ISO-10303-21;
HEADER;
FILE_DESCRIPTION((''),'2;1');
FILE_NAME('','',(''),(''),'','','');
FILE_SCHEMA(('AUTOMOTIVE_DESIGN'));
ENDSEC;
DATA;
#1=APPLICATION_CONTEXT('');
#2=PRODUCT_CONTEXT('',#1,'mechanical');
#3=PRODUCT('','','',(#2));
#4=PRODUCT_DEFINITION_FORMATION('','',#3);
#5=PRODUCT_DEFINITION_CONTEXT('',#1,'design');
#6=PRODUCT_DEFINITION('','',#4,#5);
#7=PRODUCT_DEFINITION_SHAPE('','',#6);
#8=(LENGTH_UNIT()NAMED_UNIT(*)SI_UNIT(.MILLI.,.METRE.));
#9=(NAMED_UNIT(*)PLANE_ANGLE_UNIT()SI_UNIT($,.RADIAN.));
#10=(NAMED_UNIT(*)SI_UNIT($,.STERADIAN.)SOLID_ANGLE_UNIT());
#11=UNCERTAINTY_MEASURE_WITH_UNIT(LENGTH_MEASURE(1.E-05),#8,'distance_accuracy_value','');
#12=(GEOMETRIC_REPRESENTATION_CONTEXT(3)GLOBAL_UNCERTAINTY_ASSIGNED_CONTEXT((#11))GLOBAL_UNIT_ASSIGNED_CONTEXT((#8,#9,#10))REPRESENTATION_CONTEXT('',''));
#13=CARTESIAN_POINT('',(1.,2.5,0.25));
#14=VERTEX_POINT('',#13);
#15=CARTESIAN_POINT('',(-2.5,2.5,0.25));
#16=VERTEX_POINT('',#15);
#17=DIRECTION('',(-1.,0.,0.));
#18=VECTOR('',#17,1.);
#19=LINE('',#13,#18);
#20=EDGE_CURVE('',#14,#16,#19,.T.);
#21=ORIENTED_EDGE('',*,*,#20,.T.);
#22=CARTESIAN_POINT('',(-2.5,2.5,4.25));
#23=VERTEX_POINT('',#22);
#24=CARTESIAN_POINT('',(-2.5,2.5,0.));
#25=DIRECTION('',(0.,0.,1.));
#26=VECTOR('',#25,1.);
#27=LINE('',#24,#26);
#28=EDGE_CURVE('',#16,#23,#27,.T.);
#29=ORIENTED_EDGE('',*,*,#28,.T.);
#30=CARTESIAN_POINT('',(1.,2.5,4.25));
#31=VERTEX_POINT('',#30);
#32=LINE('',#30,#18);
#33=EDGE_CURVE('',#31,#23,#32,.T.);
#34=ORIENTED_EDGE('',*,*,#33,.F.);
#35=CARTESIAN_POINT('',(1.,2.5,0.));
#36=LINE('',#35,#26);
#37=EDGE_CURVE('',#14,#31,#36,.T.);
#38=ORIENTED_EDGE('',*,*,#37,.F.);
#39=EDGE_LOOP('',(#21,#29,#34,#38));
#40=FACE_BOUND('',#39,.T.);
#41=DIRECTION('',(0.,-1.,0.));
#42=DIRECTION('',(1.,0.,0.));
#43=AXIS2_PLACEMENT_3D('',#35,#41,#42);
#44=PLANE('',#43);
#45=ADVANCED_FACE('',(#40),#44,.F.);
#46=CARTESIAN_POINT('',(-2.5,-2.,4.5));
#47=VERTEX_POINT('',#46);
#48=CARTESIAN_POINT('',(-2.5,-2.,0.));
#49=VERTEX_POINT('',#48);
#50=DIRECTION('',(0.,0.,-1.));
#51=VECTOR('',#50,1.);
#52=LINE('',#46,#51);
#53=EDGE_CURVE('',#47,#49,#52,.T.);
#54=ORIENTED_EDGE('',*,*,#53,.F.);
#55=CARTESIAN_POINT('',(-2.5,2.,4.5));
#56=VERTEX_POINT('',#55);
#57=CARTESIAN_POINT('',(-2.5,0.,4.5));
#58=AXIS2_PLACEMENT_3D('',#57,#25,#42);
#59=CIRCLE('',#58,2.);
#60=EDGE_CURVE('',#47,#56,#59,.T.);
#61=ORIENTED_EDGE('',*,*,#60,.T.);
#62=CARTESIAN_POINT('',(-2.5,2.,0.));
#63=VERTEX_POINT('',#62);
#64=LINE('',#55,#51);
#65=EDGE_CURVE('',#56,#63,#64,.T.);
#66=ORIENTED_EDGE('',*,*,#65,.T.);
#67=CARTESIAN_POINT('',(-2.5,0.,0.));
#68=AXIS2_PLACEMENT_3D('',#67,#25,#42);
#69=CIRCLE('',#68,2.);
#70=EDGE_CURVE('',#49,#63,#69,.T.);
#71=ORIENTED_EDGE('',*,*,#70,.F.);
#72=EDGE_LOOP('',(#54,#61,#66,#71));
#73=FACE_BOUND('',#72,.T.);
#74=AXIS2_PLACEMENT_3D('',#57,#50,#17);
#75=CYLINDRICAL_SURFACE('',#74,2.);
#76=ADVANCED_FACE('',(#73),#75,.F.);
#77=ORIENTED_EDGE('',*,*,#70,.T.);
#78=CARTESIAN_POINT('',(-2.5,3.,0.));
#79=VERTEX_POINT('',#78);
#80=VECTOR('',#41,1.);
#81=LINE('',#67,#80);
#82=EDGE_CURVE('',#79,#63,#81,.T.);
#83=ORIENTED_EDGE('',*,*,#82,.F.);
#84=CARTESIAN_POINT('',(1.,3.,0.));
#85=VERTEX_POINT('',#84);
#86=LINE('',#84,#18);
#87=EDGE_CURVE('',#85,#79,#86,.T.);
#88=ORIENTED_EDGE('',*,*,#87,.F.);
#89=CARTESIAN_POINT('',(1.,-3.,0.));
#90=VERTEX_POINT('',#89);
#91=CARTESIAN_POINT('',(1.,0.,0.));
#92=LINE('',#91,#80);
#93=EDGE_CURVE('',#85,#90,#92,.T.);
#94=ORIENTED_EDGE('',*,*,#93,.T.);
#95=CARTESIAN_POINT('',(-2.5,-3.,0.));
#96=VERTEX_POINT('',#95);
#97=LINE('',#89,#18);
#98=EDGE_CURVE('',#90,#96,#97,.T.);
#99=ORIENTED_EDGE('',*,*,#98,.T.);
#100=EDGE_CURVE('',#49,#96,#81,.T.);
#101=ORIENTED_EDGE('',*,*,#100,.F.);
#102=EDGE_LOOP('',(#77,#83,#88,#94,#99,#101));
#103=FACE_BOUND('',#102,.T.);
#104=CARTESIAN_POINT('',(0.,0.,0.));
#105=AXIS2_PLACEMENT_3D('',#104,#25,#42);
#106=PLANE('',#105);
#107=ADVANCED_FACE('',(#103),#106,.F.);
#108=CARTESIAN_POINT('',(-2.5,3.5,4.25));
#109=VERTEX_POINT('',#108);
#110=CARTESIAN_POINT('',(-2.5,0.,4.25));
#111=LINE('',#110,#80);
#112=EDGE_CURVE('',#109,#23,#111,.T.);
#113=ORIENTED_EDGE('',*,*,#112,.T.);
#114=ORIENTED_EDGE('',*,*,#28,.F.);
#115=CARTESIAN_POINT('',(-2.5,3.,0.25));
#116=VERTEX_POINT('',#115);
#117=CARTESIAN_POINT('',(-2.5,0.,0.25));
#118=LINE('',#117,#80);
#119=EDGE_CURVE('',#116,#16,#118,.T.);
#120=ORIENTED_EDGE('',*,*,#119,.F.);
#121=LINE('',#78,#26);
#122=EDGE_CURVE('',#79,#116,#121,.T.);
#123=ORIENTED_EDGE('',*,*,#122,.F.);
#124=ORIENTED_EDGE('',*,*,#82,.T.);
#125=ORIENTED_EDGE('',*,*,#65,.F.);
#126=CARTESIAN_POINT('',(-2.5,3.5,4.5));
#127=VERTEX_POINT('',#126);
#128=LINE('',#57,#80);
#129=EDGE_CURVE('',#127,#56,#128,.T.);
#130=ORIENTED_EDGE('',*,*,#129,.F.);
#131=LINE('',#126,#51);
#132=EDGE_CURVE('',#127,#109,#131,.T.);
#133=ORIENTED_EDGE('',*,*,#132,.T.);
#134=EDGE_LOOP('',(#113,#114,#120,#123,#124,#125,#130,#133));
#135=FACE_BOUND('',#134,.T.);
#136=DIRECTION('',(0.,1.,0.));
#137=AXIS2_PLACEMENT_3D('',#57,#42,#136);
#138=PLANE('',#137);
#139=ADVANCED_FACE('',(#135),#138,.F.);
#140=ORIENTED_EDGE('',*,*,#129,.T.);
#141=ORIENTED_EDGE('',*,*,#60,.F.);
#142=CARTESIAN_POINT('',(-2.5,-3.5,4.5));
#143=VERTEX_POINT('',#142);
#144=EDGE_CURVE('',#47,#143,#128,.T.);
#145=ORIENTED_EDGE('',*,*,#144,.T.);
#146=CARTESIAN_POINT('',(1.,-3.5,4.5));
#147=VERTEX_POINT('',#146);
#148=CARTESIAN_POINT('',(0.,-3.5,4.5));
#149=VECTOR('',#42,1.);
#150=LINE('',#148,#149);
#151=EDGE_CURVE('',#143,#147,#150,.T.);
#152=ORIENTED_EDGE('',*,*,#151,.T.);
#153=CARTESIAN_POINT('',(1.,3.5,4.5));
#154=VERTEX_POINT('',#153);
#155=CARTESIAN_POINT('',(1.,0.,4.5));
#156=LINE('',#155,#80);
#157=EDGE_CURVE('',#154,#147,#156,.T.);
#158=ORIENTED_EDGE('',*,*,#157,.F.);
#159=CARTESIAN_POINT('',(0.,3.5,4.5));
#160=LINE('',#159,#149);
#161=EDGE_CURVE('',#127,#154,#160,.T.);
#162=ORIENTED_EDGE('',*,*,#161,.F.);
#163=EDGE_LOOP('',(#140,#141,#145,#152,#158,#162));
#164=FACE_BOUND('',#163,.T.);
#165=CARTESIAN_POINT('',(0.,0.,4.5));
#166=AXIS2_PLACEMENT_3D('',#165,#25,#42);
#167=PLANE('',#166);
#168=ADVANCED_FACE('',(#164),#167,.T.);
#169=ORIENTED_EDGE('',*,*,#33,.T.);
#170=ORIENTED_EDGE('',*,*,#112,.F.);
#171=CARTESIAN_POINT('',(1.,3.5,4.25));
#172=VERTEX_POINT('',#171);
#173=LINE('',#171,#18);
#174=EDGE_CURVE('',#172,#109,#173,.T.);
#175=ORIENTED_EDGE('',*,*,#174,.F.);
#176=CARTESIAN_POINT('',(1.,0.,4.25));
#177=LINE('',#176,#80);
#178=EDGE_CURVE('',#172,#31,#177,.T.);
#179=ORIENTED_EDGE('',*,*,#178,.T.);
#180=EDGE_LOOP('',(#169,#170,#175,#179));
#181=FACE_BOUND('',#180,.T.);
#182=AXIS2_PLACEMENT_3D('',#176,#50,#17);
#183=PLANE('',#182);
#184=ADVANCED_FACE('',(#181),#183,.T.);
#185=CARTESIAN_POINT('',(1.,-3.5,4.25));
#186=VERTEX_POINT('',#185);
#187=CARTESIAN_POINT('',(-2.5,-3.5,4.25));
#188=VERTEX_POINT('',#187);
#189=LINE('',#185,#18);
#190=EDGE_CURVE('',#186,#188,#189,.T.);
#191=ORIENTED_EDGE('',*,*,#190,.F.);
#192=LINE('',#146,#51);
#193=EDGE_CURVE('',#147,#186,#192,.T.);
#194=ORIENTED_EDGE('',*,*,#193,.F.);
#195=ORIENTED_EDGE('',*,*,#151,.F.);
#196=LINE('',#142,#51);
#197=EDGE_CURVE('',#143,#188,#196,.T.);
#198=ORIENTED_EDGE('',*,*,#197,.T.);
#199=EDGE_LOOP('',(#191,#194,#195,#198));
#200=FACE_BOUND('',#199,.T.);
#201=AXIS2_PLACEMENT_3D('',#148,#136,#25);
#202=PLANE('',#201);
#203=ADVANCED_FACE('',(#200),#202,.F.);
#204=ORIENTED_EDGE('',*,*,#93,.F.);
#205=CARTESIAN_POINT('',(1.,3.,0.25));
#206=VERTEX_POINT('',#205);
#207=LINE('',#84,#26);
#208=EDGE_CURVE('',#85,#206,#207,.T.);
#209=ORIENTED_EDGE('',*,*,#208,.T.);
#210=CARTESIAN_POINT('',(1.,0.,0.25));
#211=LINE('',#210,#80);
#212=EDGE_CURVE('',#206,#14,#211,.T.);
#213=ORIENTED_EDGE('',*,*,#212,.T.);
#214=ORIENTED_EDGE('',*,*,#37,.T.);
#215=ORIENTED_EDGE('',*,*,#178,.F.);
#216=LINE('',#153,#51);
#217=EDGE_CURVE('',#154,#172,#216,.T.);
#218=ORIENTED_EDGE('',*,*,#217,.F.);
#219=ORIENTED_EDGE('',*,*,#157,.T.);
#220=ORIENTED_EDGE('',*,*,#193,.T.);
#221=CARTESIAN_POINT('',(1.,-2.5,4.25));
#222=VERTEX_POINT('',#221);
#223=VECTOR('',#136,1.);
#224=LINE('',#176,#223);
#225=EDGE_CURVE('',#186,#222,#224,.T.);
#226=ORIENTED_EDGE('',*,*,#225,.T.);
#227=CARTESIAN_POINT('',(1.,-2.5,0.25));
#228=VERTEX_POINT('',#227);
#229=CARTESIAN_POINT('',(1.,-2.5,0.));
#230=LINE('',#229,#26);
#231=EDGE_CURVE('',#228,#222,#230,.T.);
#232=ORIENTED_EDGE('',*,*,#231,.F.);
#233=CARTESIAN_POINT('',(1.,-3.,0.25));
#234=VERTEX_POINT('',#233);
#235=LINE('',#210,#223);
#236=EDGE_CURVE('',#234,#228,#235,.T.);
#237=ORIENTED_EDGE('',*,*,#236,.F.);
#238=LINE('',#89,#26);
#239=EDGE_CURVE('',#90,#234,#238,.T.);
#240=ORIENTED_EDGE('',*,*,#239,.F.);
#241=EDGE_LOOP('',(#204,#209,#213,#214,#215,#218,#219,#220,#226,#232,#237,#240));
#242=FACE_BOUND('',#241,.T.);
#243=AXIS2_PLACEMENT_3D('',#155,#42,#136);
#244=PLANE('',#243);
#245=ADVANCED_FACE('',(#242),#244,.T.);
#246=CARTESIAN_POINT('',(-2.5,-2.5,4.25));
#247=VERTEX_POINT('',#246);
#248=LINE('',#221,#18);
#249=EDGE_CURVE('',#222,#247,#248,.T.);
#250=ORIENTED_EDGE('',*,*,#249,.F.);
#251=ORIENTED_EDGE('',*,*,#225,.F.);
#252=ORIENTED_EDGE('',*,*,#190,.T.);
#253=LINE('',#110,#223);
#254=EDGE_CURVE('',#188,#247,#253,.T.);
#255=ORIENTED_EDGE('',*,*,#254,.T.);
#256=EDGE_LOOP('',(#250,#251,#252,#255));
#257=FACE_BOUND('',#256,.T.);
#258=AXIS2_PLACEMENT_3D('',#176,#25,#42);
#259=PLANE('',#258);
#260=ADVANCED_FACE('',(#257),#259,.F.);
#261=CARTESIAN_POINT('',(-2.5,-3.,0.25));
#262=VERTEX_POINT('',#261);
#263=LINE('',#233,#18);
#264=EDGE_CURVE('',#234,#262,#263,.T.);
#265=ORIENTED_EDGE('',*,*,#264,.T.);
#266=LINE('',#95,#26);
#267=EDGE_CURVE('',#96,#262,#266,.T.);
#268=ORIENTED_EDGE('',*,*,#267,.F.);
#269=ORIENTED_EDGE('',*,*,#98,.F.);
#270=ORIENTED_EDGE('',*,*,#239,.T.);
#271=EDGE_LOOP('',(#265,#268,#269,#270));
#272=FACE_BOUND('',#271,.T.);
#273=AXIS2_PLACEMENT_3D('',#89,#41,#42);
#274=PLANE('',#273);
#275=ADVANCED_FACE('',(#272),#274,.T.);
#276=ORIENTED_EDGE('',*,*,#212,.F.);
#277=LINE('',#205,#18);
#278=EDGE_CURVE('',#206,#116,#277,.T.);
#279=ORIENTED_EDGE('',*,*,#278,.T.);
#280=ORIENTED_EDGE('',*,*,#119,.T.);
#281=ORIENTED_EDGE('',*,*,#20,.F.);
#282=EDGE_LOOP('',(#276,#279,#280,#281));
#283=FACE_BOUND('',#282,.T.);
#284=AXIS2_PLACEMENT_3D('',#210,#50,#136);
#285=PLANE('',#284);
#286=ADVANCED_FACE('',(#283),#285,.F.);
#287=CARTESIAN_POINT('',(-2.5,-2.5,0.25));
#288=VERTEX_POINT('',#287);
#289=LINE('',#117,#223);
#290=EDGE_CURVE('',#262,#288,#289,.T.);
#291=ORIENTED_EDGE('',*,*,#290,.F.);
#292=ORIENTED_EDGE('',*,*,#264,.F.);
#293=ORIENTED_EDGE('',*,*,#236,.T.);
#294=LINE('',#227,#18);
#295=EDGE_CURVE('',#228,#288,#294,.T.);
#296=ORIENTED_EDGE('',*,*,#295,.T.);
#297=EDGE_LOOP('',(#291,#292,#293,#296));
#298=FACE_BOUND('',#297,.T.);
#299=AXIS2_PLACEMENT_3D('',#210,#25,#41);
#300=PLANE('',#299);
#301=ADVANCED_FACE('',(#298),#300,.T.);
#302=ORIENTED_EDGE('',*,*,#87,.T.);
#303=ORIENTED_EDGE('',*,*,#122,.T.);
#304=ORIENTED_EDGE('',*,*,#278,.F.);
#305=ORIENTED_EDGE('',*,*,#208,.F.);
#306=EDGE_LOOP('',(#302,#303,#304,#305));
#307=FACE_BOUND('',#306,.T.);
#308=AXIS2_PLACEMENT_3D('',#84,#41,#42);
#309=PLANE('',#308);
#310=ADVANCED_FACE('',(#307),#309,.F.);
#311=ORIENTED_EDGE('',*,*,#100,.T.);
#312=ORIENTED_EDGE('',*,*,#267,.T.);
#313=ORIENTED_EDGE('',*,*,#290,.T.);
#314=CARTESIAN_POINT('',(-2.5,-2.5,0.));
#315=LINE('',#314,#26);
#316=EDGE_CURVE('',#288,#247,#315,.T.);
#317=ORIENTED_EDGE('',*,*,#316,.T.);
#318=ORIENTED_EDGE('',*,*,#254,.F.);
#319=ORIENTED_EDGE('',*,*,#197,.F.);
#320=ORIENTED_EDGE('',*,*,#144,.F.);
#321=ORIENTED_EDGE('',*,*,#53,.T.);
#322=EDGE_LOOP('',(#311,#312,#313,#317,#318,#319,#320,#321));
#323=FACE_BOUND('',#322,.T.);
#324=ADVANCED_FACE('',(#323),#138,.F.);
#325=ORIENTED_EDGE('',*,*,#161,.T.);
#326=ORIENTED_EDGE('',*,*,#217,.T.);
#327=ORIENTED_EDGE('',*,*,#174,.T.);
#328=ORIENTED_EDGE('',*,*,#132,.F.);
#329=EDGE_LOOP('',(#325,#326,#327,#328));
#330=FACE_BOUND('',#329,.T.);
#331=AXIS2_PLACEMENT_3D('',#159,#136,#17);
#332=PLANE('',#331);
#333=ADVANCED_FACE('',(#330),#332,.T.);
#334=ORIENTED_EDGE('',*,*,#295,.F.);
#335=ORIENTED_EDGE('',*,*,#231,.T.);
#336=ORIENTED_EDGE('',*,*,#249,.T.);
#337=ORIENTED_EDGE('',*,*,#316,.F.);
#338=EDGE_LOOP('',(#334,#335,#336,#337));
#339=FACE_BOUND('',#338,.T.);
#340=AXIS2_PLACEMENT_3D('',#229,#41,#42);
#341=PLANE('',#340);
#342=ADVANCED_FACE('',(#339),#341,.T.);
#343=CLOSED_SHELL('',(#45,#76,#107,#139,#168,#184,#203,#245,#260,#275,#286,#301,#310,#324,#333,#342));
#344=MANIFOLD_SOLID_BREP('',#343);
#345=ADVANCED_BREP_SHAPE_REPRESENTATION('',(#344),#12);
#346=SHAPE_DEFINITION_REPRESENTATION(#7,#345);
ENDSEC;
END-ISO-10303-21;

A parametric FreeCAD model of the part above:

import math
import FreeCAD as App
import Part
import Sketcher
from FreeCAD import Vector
Q = App.Units.Quantity


def add_polygon(sketch, points):
    """Adds a closed chain of lines whose ends are joined by coincident constraints."""
    first, n = sketch.GeometryCount, len(points)
    for a, b in zip(points, points[1:] + points[:1]):
        sketch.addGeometry(Part.LineSegment(App.Vector(*a, 0), App.Vector(*b, 0)), False)
    for i in range(n):
        sketch.addConstraint(Sketcher.Constraint("Coincident", first + i, 2, first + (i + 1) % n, 1))

doc = App.newDocument("Part")
body = doc.addObject("PartDesign::Body", "Body")

# Sketch on XY plane
sketch1 = body.newObject("Sketcher::SketchObject", "Sketch")
sketch1.AttachmentSupport = (doc.getObject("XY_Plane"), [""])
sketch1.MapMode = "FlatFace"
sketch1.addGeometry([
    Part.LineSegment(Vector(1, 3.5, 0), Vector(-2.5, 3.5, 0)),  # 0
    Part.LineSegment(Vector(-2.5, 3.5, 0), Vector(-2.5, 2, 0)),  # 1
    Part.ArcOfCircle(Part.Circle(Vector(-2.5, 0, 0), Vector(0, 0, 1), 2), math.radians(-90), math.radians(90)),  # 2
    Part.LineSegment(Vector(-2.5, -2, 0), Vector(-2.5, -3.5, 0)),  # 3
    Part.LineSegment(Vector(-2.5, -3.5, 0), Vector(1, -3.5, 0)),  # 4
    Part.LineSegment(Vector(1, -3.5, 0), Vector(1, 3.5, 0)),  # 5
], False)
sketch1.addConstraint([
    Sketcher.Constraint("Coincident", 0, 2, 1, 1),
    Sketcher.Constraint("Coincident", 1, 2, 2, 2),
    Sketcher.Constraint("Coincident", 2, 1, 3, 1),
    Sketcher.Constraint("Coincident", 3, 2, 4, 1),
    Sketcher.Constraint("Coincident", 4, 2, 5, 1),
    Sketcher.Constraint("Coincident", 5, 2, 0, 1),
    Sketcher.Constraint("Horizontal", 0),
    Sketcher.Constraint("Vertical", 1),
    Sketcher.Constraint("Vertical", 3),
    Sketcher.Constraint("Horizontal", 4),
    Sketcher.Constraint("Vertical", 5),
    Sketcher.Constraint("Symmetric", 1, 2, 2, 1, -1),
    Sketcher.Constraint("Vertical", 2, 3, 0, 2),
    Sketcher.Constraint("Equal", 1, 3),
    Sketcher.Constraint("Radius", 2, Q("2 mm")),
    Sketcher.Constraint("DistanceY", 5, 1, 5, 2, Q("7 mm")),
    Sketcher.Constraint("DistanceX", 0, 2, 0, 1, Q("3.5 mm")),
    Sketcher.Constraint("DistanceX", -1, 1, 4, 2, Q("1 mm")),
])
pad1 = body.newObject("PartDesign::Pad", "Pad")
pad1.Profile = sketch1
pad1.Length = 4.5

# Sketch on YZ plane
sketch2 = body.newObject("Sketcher::SketchObject", "Sketch001")
sketch2.AttachmentSupport = (doc.getObject("YZ_Plane"), [""])
sketch2.MapMode = "FlatFace"
sketch2.AttachmentOffset = App.Placement(Vector(0, 0, -2.5), App.Rotation())
add_polygon(sketch2, [(3.5, 4.25), (3.5, 0), (3, 0), (3, 0.25), (2.5, 0.25), (2.5, 4.25)])  # lines 0-5
add_polygon(sketch2, [(-2.5, 0.25), (-3, 0.25), (-3, 0), (-3.5, 0), (-3.5, 4.25), (-2.5, 4.25)])  # lines 6-11
sketch2.addConstraint([
    Sketcher.Constraint("Vertical", 0),
    Sketcher.Constraint("Horizontal", 1),
    Sketcher.Constraint("Vertical", 2),
    Sketcher.Constraint("Horizontal", 3),
    Sketcher.Constraint("Vertical", 4),
    Sketcher.Constraint("Horizontal", 5),
    Sketcher.Constraint("Horizontal", 6),
    Sketcher.Constraint("Vertical", 7),
    Sketcher.Constraint("Horizontal", 8),
    Sketcher.Constraint("Vertical", 9),
    Sketcher.Constraint("Horizontal", 10),
    Sketcher.Constraint("Vertical", 11),
    Sketcher.Constraint("Symmetric", 1, 2, 7, 2, -1, 1),
    Sketcher.Constraint("Symmetric", 0, 2, 8, 2, -2),
    Sketcher.Constraint("Symmetric", 4, 2, 10, 2, -2),
    Sketcher.Constraint("Horizontal", 3, 2, 6, 2),
    Sketcher.Constraint("Equal", 1, 3),
    Sketcher.Constraint("DistanceX", 5, 1, 5, 2, Q("1 mm")),
    Sketcher.Constraint("DistanceY", 4, 1, 4, 2, Q("4 mm")),
    Sketcher.Constraint("DistanceX", -1, 1, 1, 2, Q("3 mm")),
    Sketcher.Constraint("DistanceY", 0, 2, 0, 1, Q("4.25 mm")),
])
pocket1 = body.newObject("PartDesign::Pocket", "Pocket")
pocket1.Profile = sketch2
pocket1.Type = "ThroughAll"
pocket1.Reversed = True

doc.recompute()
